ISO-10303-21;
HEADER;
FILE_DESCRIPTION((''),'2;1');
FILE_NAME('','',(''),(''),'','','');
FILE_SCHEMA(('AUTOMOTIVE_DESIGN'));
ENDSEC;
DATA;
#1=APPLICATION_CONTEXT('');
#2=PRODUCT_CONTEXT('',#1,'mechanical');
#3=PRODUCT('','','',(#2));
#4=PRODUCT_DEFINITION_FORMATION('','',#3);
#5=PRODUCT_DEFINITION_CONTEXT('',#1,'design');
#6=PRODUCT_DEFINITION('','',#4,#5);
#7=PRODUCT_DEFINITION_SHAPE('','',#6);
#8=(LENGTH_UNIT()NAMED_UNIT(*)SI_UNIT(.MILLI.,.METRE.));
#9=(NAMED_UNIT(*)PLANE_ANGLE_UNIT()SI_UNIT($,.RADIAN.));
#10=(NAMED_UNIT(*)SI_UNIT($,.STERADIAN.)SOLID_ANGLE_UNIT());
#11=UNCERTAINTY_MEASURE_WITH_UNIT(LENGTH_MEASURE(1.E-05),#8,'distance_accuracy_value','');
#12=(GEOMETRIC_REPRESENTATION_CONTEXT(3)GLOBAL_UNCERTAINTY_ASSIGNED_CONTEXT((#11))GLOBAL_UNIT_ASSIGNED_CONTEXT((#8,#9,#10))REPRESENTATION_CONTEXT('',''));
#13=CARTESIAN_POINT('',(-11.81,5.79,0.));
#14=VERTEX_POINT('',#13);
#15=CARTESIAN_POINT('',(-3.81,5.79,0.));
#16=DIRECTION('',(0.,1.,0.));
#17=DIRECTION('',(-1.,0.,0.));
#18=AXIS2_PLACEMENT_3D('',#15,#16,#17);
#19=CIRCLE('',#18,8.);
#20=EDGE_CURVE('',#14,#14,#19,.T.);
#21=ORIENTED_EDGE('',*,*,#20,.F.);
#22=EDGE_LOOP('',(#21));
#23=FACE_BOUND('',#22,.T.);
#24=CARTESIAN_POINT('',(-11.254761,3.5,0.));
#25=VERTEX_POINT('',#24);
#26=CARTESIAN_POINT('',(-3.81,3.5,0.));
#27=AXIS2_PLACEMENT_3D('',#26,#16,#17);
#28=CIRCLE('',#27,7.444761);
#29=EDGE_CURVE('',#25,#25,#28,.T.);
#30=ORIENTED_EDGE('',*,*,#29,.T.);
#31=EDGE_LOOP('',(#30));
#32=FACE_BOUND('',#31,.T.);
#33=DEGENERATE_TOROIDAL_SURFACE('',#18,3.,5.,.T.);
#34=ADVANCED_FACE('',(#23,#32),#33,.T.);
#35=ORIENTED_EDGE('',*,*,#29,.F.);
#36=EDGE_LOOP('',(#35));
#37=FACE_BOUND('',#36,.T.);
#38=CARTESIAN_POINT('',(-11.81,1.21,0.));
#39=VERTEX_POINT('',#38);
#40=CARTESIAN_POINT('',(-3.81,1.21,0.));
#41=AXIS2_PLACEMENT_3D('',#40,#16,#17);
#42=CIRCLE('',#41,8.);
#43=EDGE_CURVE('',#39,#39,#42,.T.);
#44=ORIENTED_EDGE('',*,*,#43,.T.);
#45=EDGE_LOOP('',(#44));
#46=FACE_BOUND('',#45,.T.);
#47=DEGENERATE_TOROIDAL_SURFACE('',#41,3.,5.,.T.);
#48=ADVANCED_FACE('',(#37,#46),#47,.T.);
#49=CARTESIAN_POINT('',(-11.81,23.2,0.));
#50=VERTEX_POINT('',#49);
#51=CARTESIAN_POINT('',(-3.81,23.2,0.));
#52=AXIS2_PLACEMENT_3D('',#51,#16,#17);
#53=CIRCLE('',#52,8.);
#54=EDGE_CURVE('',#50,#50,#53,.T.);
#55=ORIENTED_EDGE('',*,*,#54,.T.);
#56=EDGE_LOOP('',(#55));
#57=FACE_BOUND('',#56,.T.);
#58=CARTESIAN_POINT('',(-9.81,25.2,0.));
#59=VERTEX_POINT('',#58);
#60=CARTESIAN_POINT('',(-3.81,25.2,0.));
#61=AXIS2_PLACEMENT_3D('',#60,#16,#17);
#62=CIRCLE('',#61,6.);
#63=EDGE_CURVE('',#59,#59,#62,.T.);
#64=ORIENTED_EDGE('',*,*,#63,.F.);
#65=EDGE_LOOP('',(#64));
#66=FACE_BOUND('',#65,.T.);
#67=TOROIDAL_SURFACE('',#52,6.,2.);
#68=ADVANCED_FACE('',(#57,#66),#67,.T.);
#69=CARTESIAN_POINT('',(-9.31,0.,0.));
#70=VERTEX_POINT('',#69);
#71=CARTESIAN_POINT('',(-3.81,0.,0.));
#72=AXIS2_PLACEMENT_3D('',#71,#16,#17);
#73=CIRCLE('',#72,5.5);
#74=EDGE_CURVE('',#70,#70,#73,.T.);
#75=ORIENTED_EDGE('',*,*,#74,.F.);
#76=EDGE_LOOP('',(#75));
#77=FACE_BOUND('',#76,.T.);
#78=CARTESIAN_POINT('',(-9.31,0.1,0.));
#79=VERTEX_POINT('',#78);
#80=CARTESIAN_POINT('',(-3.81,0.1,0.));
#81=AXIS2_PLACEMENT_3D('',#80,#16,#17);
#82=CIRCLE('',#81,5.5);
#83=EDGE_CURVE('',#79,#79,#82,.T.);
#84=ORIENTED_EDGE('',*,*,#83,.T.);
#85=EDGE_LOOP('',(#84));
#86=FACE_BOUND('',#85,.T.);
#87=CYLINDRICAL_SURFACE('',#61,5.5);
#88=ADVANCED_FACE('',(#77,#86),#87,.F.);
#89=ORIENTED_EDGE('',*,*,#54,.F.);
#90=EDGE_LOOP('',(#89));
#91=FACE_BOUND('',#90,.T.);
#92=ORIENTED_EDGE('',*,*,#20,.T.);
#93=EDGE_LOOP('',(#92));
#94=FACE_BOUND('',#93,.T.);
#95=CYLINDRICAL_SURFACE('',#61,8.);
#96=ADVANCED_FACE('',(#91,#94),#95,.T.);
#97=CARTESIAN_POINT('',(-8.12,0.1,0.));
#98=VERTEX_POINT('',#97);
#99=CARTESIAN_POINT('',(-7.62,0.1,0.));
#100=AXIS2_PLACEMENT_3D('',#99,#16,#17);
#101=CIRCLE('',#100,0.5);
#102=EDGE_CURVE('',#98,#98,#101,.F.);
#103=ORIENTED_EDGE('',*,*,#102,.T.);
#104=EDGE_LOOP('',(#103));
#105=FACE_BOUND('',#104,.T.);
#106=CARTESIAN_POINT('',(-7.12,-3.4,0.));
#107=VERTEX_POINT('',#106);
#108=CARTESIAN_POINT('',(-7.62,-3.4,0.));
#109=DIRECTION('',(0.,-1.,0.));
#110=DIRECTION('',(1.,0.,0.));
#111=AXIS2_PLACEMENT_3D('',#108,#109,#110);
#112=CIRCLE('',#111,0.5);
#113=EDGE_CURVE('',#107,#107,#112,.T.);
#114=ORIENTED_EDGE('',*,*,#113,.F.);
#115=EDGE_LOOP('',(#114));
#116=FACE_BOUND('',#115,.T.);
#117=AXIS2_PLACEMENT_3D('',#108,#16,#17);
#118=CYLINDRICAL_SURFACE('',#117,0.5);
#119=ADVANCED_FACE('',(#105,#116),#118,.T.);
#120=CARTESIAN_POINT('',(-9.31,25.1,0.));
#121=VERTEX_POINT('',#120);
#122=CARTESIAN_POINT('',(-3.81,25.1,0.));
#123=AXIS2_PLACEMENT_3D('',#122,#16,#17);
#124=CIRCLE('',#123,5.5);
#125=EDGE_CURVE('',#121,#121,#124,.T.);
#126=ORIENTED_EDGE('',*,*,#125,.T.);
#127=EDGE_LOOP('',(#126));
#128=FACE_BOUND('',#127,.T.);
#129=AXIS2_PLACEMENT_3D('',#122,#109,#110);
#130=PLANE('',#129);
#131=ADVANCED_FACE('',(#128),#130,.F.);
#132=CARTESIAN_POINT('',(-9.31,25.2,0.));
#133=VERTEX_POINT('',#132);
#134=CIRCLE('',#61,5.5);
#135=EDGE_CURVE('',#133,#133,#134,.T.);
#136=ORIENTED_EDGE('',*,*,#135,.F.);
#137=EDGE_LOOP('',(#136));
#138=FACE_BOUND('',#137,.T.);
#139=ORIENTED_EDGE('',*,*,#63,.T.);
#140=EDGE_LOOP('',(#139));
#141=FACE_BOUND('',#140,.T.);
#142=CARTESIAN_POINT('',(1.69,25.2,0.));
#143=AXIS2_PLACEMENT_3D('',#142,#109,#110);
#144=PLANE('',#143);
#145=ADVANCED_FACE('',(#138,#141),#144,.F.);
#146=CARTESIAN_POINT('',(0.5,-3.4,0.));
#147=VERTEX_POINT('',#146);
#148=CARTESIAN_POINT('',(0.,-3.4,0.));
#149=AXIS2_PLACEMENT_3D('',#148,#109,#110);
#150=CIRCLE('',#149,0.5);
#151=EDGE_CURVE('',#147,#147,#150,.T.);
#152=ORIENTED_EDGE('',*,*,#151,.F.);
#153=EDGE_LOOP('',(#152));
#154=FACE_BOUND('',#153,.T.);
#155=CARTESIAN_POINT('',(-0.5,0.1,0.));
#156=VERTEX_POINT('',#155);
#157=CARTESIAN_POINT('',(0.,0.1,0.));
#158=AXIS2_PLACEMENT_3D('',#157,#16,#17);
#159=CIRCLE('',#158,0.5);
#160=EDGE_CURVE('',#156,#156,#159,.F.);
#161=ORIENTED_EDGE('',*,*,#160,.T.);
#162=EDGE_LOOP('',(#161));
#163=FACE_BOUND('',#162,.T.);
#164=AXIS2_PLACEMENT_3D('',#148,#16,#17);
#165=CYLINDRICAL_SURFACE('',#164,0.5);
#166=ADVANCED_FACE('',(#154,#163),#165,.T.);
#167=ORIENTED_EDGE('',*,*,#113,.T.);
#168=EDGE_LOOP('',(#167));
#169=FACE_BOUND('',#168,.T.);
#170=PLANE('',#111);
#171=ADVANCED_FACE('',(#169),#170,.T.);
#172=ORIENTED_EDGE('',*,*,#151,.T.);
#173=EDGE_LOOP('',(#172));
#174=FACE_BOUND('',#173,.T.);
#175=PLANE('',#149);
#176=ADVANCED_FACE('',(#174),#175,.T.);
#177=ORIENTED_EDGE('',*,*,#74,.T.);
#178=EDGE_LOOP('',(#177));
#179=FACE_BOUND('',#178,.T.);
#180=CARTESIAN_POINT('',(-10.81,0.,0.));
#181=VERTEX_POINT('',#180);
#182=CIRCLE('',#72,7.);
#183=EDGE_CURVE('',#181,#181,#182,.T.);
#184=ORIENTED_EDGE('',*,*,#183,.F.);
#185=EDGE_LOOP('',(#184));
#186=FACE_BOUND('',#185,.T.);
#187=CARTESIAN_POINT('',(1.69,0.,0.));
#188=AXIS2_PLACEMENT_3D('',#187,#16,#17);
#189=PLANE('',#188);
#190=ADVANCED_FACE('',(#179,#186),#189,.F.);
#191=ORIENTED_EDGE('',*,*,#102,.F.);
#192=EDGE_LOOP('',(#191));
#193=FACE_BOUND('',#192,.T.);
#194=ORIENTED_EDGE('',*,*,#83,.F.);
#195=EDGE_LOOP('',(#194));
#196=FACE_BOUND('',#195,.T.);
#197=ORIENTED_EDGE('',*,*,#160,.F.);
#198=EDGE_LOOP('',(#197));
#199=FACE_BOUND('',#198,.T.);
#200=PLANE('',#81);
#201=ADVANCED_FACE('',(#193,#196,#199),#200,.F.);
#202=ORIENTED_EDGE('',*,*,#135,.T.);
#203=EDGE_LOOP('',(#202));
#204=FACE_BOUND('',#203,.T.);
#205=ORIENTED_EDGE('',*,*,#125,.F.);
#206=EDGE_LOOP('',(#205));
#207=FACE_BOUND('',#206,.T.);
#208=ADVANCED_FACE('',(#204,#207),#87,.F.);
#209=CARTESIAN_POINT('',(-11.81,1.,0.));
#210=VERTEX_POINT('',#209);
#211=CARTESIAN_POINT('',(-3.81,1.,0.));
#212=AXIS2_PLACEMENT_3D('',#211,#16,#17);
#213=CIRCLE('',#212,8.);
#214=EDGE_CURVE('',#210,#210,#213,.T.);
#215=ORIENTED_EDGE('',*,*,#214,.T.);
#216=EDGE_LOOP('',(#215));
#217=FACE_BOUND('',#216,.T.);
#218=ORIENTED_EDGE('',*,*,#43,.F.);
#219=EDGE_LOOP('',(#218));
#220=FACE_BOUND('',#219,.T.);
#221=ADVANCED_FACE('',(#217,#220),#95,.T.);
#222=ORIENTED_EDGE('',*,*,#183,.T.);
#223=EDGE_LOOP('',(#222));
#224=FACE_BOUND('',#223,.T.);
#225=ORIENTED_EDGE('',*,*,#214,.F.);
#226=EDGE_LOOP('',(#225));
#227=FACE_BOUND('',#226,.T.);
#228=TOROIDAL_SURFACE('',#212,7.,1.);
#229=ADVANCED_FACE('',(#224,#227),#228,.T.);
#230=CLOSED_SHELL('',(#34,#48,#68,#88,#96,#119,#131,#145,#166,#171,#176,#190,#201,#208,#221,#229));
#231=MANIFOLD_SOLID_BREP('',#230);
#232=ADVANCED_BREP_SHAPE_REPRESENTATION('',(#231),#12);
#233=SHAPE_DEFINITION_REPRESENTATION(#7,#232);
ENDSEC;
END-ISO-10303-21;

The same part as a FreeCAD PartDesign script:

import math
import FreeCAD as App
import Part
import Sketcher
Q = App.Units.Quantity

doc = App.newDocument("Part")
body = doc.addObject("PartDesign::Body", "Body")

# Sketch on XY plane
sketch1 = body.newObject("Sketcher::SketchObject", "Sketch")
sketch1.AttachmentSupport = (doc.getObject("XY_Plane"), [""])
sketch1.MapMode = "FlatFace"
sketch1.addGeometry([
    Part.LineSegment(App.Vector(-3.81, 0.1, 0), App.Vector(1.69, 0.1, 0)),  # 0
    Part.LineSegment(App.Vector(1.69, 0.1, 0), App.Vector(1.69, 0, 0)),  # 1
    Part.LineSegment(App.Vector(1.69, 0, 0), App.Vector(3.19, 0, 0)),  # 2
    Part.ArcOfCircle(Part.Circle(App.Vector(3.19, 1, 0), App.Vector(0, 0, 1), 1), math.radians(-90), math.radians(0)),  # 3
    Part.LineSegment(App.Vector(4.19, 1, 0), App.Vector(4.19, 1.21, 0)),  # 4
    Part.ArcOfCircle(Part.Circle(App.Vector(-0.81, 1.21, 0), App.Vector(0, 0, 1), 5), math.radians(0), math.radians(27.258126)),  # 5
    Part.ArcOfCircle(Part.Circle(App.Vector(-0.81, 5.79, 0), App.Vector(0, 0, 1), 5), math.radians(-27.258126), math.radians(0)),  # 6
    Part.LineSegment(App.Vector(4.19, 5.79, 0), App.Vector(4.19, 23.2, 0)),  # 7
    Part.ArcOfCircle(Part.Circle(App.Vector(2.19, 23.2, 0), App.Vector(0, 0, 1), 2), math.radians(0), math.radians(90)),  # 8
    Part.LineSegment(App.Vector(2.19, 25.2, 0), App.Vector(1.69, 25.2, 0)),  # 9
    Part.LineSegment(App.Vector(1.69, 25.2, 0), App.Vector(1.69, 25.1, 0)),  # 10
    Part.LineSegment(App.Vector(1.69, 25.1, 0), App.Vector(-3.81, 25.1, 0)),  # 11
    Part.LineSegment(App.Vector(-3.81, 25.1, 0), App.Vector(-3.81, 0.1, 0)),  # 12
], False)
sketch1.addGeometry(Part.LineSegment(App.Vector(-3.81, 25.2, 0), App.Vector(-3.81, 0, 0)), True)  # axis
sketch1.addConstraint([
    Sketcher.Constraint("Coincident", 0, 2, 1, 1),
    Sketcher.Constraint("Coincident", 1, 2, 2, 1),
    Sketcher.Constraint("Tangent", 2, 2, 3, 1),
    Sketcher.Constraint("Tangent", 3, 2, 4, 1),
    Sketcher.Constraint("Tangent", 4, 2, 5, 1),
    Sketcher.Constraint("Coincident", 5, 2, 6, 1),
    Sketcher.Constraint("Tangent", 6, 2, 7, 1),
    Sketcher.Constraint("Tangent", 7, 2, 8, 1),
    Sketcher.Constraint("Tangent", 8, 2, 9, 1),
    Sketcher.Constraint("Coincident", 9, 2, 10, 1),
    Sketcher.Constraint("Coincident", 10, 2, 11, 1),
    Sketcher.Constraint("Coincident", 11, 2, 12, 1),
    Sketcher.Constraint("Coincident", 12, 2, 0, 1),
    Sketcher.Constraint("Horizontal", 0),
    Sketcher.Constraint("Vertical", 1),
    Sketcher.Constraint("Horizontal", 2),
    Sketcher.Constraint("Vertical", 4),
    Sketcher.Constraint("Vertical", 7),
    Sketcher.Constraint("Horizontal", 9),
    Sketcher.Constraint("Vertical", 10),
    Sketcher.Constraint("Horizontal", 11),
    Sketcher.Constraint("Vertical", 12),
    Sketcher.Constraint("Vertical", 13),
    Sketcher.Constraint("Equal", 5, 6),
    Sketcher.Constraint("PointOnObject", 1, 2, -1),
    Sketcher.Constraint("PointOnObject", 13, 2, -1),
    Sketcher.Constraint("Horizontal", 9, 2, 13, 1),
    Sketcher.Constraint("Vertical", 5, 3, 6, 3),
    Sketcher.Constraint("Vertical", 1, 2, 9, 2),
    Sketcher.Constraint("Vertical", 12, 2, 13, 1),
    Sketcher.Constraint("Equal", 1, 10),
    Sketcher.Constraint("Radius", 3, Q("1 mm")),
    Sketcher.Constraint("Radius", 5, Q("5 mm")),
    Sketcher.Constraint("Radius", 8, Q("2 mm")),
    Sketcher.Constraint("DistanceY", 12, 2, 12, 1, Q("25 mm")),
    Sketcher.Constraint("DistanceX", 0, 1, 0, 2, Q("5.5 mm")),
    Sketcher.Constraint("DistanceX", 2, 1, 2, 2, Q("1.5 mm")),
    Sketcher.Constraint("DistanceY", 1, 2, 1, 1, Q("0.1 mm")),
    Sketcher.Constraint("DistanceY", 4, 1, 4, 2, Q("0.21 mm")),
    Sketcher.Constraint("DistanceY", 7, 1, 7, 2, Q("17.41 mm")),
    Sketcher.Constraint("DistanceX", -1, 1, 3, 3, Q("3.19 mm")),
])
revolution = body.newObject("PartDesign::Revolution", "Revolution")
revolution.Profile = sketch1
revolution.ReferenceAxis = (sketch1, ["Axis0"])
revolution.Angle = 360

# Sketch on XZ plane
sketch2 = body.newObject("Sketcher::SketchObject", "Sketch001")
sketch2.AttachmentSupport = (doc.getObject("XZ_Plane"), [""])
sketch2.MapMode = "FlatFace"
sketch2.AttachmentOffset = App.Placement(App.Vector(0, 0, -0.1), App.Rotation())
sketch2.addGeometry([
    Part.Circle(App.Vector(0, 0, 0), App.Vector(0, 0, 1), 0.5),
    Part.Circle(App.Vector(-7.62, 0, 0), App.Vector(0, 0, 1), 0.5),
], False)
sketch2.addConstraint([
    Sketcher.Constraint("Coincident", 0, 3, -1, 1),
    Sketcher.Constraint("Equal", 0, 1),
    Sketcher.Constraint("PointOnObject", 1, 3, -1),
    Sketcher.Constraint("Diameter", 0, Q("1 mm")),
    Sketcher.Constraint("DistanceX", 1, 3, -1, 1, Q("7.62 mm")),
])
pad1 = body.newObject("PartDesign::Pad", "Pad")
pad1.Profile = sketch2
pad1.Length = 3.5

doc.recompute()
